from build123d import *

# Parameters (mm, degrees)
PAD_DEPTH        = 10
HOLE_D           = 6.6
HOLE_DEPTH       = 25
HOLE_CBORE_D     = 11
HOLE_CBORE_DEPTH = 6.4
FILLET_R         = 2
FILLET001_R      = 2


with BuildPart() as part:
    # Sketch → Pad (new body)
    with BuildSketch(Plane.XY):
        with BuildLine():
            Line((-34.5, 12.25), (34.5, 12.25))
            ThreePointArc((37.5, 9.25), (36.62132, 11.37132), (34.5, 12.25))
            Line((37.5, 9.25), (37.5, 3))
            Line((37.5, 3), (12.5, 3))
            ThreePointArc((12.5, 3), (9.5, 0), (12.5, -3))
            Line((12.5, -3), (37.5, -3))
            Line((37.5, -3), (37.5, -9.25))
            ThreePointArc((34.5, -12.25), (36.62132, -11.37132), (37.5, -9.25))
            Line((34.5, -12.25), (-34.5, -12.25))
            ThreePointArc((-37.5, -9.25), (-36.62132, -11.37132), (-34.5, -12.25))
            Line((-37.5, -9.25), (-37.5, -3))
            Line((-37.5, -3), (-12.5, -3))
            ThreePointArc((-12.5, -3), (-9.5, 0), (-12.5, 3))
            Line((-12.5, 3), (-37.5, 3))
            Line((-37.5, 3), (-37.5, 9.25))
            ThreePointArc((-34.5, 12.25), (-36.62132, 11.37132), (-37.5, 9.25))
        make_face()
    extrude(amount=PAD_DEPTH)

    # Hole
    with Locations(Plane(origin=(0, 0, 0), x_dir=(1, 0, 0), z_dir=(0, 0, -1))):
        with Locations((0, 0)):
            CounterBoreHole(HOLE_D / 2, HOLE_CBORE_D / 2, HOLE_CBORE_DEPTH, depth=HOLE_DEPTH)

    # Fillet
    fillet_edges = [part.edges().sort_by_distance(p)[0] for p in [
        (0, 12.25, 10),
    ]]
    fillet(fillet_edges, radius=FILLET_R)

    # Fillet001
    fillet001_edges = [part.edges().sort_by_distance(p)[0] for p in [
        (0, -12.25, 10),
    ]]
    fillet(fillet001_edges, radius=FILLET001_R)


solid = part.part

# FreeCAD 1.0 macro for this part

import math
import FreeCAD as App
import Part
import Sketcher
from FreeCAD import Vector
Q = App.Units.Quantity


def edges_at(feature, points):
    """Names of the edges that pass closest to the given points."""
    edges = feature.Shape.Edges
    near = lambda p: min(range(len(edges)), key=lambda i: edges[i].distToShape(Part.Vertex(*p))[0])
    return sorted({f"Edge{near(p) + 1}" for p in points})

doc = App.newDocument("Part")
body = doc.addObject("PartDesign::Body", "Body")

# Sketch on XY plane
sketch1 = body.newObject("Sketcher::SketchObject", "Sketch")
sketch1.AttachmentSupport = (doc.getObject("XY_Plane"), [""])
sketch1.MapMode = "FlatFace"
sketch1.addGeometry(Part.LineSegment(Vector(34.5, 12.2, 0), Vector(-34.5, 12.2, 0)), False)
sketch1.addGeometry(Part.ArcOfCircle(Part.Circle(Vector(-34.5, 9.2, 0), Vector(0, 0, 1), 3), math.radians(90), math.radians(180)), False)
sketch1.addGeometry(Part.LineSegment(Vector(-37.5, 9.2, 0), Vector(-37.5, 3, 0)), False)
sketch1.addGeometry(Part.LineSegment(Vector(-37.5, 3, 0), Vector(-12.5, 3, 0)), False)
sketch1.addGeometry(Part.ArcOfCircle(Part.Circle(Vector(-12.5, 0, 0), Vector(0, 0, 1), 3), math.radians(-90), math.radians(90)), False)
sketch1.addGeometry(Part.LineSegment(Vector(-12.5, -3, 0), Vector(-37.5, -3, 0)), False)
sketch1.addGeometry(Part.LineSegment(Vector(-37.5, -3, 0), Vector(-37.5, -9.2, 0)), False)
sketch1.addGeometry(Part.ArcOfCircle(Part.Circle(Vector(-34.5, -9.2, 0), Vector(0, 0, 1), 3), math.radians(-180), math.radians(-90)), False)
sketch1.addGeometry(Part.LineSegment(Vector(-34.5, -12.2, 0), Vector(34.5, -12.2, 0)), False)
sketch1.addGeometry(Part.ArcOfCircle(Part.Circle(Vector(34.5, -9.2, 0), Vector(0, 0, 1), 3), math.radians(-90), math.radians(0)), False)
sketch1.addGeometry(Part.LineSegment(Vector(37.5, -9.2, 0), Vector(37.5, -3, 0)), False)
sketch1.addGeometry(Part.LineSegment(Vector(37.5, -3, 0), Vector(12.5, -3, 0)), False)
sketch1.addGeometry(Part.ArcOfCircle(Part.Circle(Vector(12.5, 0, 0), Vector(0, 0, 1), 3), math.radians(90), math.radians(270)), False)
sketch1.addGeometry(Part.LineSegment(Vector(12.5, 3, 0), Vector(37.5, 3, 0)), False)
sketch1.addGeometry(Part.LineSegment(Vector(37.5, 3, 0), Vector(37.5, 9.2, 0)), False)
sketch1.addGeometry(Part.ArcOfCircle(Part.Circle(Vector(34.5, 9.2, 0), Vector(0, 0, 1), 3), math.radians(0), math.radians(90)), False)
sketch1.addConstraint(Sketcher.Constraint("Tangent", 0, 2, 1, 1))
sketch1.addConstraint(Sketcher.Constraint("Tangent", 1, 2, 2, 1))
sketch1.addConstraint(Sketcher.Constraint("Coincident", 2, 2, 3, 1))
sketch1.addConstraint(Sketcher.Constraint("Tangent", 3, 2, 4, 2))
sketch1.addConstraint(Sketcher.Constraint("Tangent", 4, 1, 5, 1))
sketch1.addConstraint(Sketcher.Constraint("Coincident", 5, 2, 6, 1))
sketch1.addConstraint(Sketcher.Constraint("Tangent", 6, 2, 7, 1))
sketch1.addConstraint(Sketcher.Constraint("Tangent", 7, 2, 8, 1))
sketch1.addConstraint(Sketcher.Constraint("Tangent", 8, 2, 9, 1))
sketch1.addConstraint(Sketcher.Constraint("Tangent", 9, 2, 10, 1))
sketch1.addConstraint(Sketcher.Constraint("Coincident", 10, 2, 11, 1))
sketch1.addConstraint(Sketcher.Constraint("Tangent", 11, 2, 12, 2))
sketch1.addConstraint(Sketcher.Constraint("Tangent", 12, 1, 13, 1))
sketch1.addConstraint(Sketcher.Constraint("Coincident", 13, 2, 14, 1))
sketch1.addConstraint(Sketcher.Constraint("Tangent", 14, 2, 15, 1))
sketch1.addConstraint(Sketcher.Constraint("Tangent", 15, 2, 0, 1))
sketch1.addConstraint(Sketcher.Constraint("Horizontal", 0))
sketch1.addConstraint(Sketcher.Constraint("Vertical", 2))
sketch1.addConstraint(Sketcher.Constraint("Horizontal", 3))
sketch1.addConstraint(Sketcher.Constraint("Horizontal", 5))
sketch1.addConstraint(Sketcher.Constraint("Vertical", 6))
sketch1.addConstraint(Sketcher.Constraint("Horizontal", 8))
sketch1.addConstraint(Sketcher.Constraint("Vertical", 10))
sketch1.addConstraint(Sketcher.Constraint("Horizontal", 11))
sketch1.addConstraint(Sketcher.Constraint("Horizontal", 13))
sketch1.addConstraint(Sketcher.Constraint("Vertical", 14))
sketch1.addConstraint(Sketcher.Constraint("Equal", 1, 4))
sketch1.addConstraint(Sketcher.Constraint("Equal", 4, 7))
sketch1.addConstraint(Sketcher.Constraint("Equal", 7, 9))
sketch1.addConstraint(Sketcher.Constraint("Equal", 9, 12))
sketch1.addConstraint(Sketcher.Constraint("Equal", 12, 15))
sketch1.addConstraint(Sketcher.Constraint("Symmetric", 1, 3, 9, 3, -1, 1))
sketch1.addConstraint(Sketcher.Constraint("Symmetric", 4, 3, 12, 3, -1, 1))
sketch1.addConstraint(Sketcher.Constraint("Symmetric", 5, 2, 10, 2, -2))
sketch1.addConstraint(Sketcher.Constraint("Vertical", 9, 3, 15, 3))
sketch1.addConstraint(Sketcher.Constraint("Radius", 1, Q("3.000001 mm")))
sketch1.addConstraint(Sketcher.Constraint("DistanceX", 0, 2, 0, 1, Q("69 mm")))
sketch1.addConstraint(Sketcher.Constraint("DistanceX", 3, 1, 3, 2, Q("25 mm")))
sketch1.addConstraint(Sketcher.Constraint("DistanceY", 2, 2, 2, 1, Q("6.25 mm")))
pad1 = body.newObject("PartDesign::Pad", "Pad")
pad1.Profile = sketch1
pad1.Length = 10

# Sketch on XY plane
sketch2 = body.newObject("Sketcher::SketchObject", "Sketch001")
sketch2.AttachmentSupport = (doc.getObject("XY_Plane"), [""])
sketch2.MapMode = "FlatFace"
sketch2.addGeometry(Part.Circle(Vector(0, 0, 0), Vector(0, 0, 1), 3.3), False)
sketch2.addConstraint(Sketcher.Constraint("Coincident", 0, 3, -1, 1))
sketch2.addConstraint(Sketcher.Constraint("Diameter", 0, Q("6.6 mm")))
doc.recompute()
hole = body.newObject("PartDesign::Hole", "Hole")
hole.Profile = sketch2
hole.ThreadType = "None"
hole.Diameter = 6.6
hole.DepthType = "Dimension"
hole.Depth = 25
hole.DrillPoint = "Flat"
hole.HoleCutType = "Counterbore"
hole.HoleCutDiameter = 11
hole.HoleCutDepth = 6.4
hole.Reversed = True
doc.recompute()

fillet = body.newObject("PartDesign::Fillet", "Fillet")
fillet.Base = (hole, edges_at(hole, [(0, 12.25, 10)]))
fillet.Radius = 2
doc.recompute()

fillet2 = body.newObject("PartDesign::Fillet", "Fillet001")
fillet2.Base = (fillet, edges_at(fillet, [(0, -12.25, 10)]))
fillet2.Radius = 2

doc.recompute()
